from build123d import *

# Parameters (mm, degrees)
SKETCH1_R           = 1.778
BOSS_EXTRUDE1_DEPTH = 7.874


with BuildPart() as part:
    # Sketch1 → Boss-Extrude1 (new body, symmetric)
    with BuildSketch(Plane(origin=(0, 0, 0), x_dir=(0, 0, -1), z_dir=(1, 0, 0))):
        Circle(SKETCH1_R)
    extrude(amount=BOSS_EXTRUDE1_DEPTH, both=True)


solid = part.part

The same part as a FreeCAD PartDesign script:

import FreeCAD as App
import Part
import Sketcher
Q = App.Units.Quantity

doc = App.newDocument("Part")
body = doc.addObject("PartDesign::Body", "Body")

# Sketch on YZ plane
sketch1 = body.newObject("Sketcher::SketchObject", "Sketch")
sketch1.AttachmentSupport = (doc.getObject("YZ_Plane"), [""])
sketch1.MapMode = "FlatFace"
sketch1.addGeometry(Part.Circle(App.Vector(0, 0, 0), App.Vector(0, 0, 1), 1.8), False)
sketch1.addConstraint(Sketcher.Constraint("Coincident", 0, 3, -1, 1))
sketch1.addConstraint(Sketcher.Constraint("Diameter", 0, Q("0.14 in")))
pad1 = body.newObject("PartDesign::Pad", "Pad")
pad1.Profile = sketch1
pad1.Length = Q("0.62 in")
pad1.Midplane = True

doc.recompute()
